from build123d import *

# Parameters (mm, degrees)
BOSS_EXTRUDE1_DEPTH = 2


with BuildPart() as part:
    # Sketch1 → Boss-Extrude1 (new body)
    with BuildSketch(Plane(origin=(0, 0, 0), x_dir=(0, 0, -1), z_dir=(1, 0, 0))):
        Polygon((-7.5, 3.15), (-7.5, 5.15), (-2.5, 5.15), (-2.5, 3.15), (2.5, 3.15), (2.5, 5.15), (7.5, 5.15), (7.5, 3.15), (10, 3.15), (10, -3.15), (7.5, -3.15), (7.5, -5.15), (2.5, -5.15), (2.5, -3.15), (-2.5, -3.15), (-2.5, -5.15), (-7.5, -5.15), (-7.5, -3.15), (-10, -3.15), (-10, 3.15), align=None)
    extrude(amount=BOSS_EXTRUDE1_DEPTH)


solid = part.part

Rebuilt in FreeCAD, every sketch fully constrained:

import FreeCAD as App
import Part
import Sketcher

doc = App.newDocument("Part")
body = doc.addObject("PartDesign::Body", "Body")

# Sketch on YZ plane
sketch1 = body.newObject("Sketcher::SketchObject", "Sketch")
sketch1.AttachmentSupport = (doc.getObject("YZ_Plane"), [""])
sketch1.MapMode = "FlatFace"
sketch1.addGeometry([
    Part.LineSegment(App.Vector(5.15, 7.5, 0), App.Vector(3.15, 7.5, 0)),  # 0
    Part.LineSegment(App.Vector(3.15, 7.5, 0), App.Vector(3.15, 10, 0)),  # 1
    Part.LineSegment(App.Vector(3.15, 10, 0), App.Vector(-3.15, 10, 0)),  # 2
    Part.LineSegment(App.Vector(-3.15, 10, 0), App.Vector(-3.15, 7.5, 0)),  # 3
    Part.LineSegment(App.Vector(-3.15, 7.5, 0), App.Vector(-5.15, 7.5, 0)),  # 4
    Part.LineSegment(App.Vector(-5.15, 7.5, 0), App.Vector(-5.15, 2.5, 0)),  # 5
    Part.LineSegment(App.Vector(-5.15, 2.5, 0), App.Vector(-3.15, 2.5, 0)),  # 6
    Part.LineSegment(App.Vector(-3.15, 2.5, 0), App.Vector(-3.15, -2.5, 0)),  # 7
    Part.LineSegment(App.Vector(-3.15, -2.5, 0), App.Vector(-5.15, -2.5, 0)),  # 8
    Part.LineSegment(App.Vector(-5.15, -2.5, 0), App.Vector(-5.15, -7.5, 0)),  # 9
    Part.LineSegment(App.Vector(-5.15, -7.5, 0), App.Vector(-3.15, -7.5, 0)),  # 10
    Part.LineSegment(App.Vector(-3.15, -7.5, 0), App.Vector(-3.15, -10, 0)),  # 11
    Part.LineSegment(App.Vector(-3.15, -10, 0), App.Vector(3.15, -10, 0)),  # 12
    Part.LineSegment(App.Vector(3.15, -10, 0), App.Vector(3.15, -7.5, 0)),  # 13
    Part.LineSegment(App.Vector(3.15, -7.5, 0), App.Vector(5.15, -7.5, 0)),  # 14
    Part.LineSegment(App.Vector(5.15, -7.5, 0), App.Vector(5.15, -2.5, 0)),  # 15
    Part.LineSegment(App.Vector(5.15, -2.5, 0), App.Vector(3.15, -2.5, 0)),  # 16
    Part.LineSegment(App.Vector(3.15, -2.5, 0), App.Vector(3.15, 2.5, 0)),  # 17
    Part.LineSegment(App.Vector(3.15, 2.5, 0), App.Vector(5.15, 2.5, 0)),  # 18
    Part.LineSegment(App.Vector(5.15, 2.5, 0), App.Vector(5.15, 7.5, 0)),  # 19
], False)
sketch1.addConstraint([
    Sketcher.Constraint("Coincident", 0, 2, 1, 1),
    Sketcher.Constraint("Coincident", 1, 2, 2, 1),
    Sketcher.Constraint("Coincident", 2, 2, 3, 1),
    Sketcher.Constraint("Coincident", 3, 2, 4, 1),
    Sketcher.Constraint("Coincident", 4, 2, 5, 1),
    Sketcher.Constraint("Coincident", 5, 2, 6, 1),
    Sketcher.Constraint("Coincident", 6, 2, 7, 1),
    Sketcher.Constraint("Coincident", 7, 2, 8, 1),
    Sketcher.Constraint("Coincident", 8, 2, 9, 1),
    Sketcher.Constraint("Coincident", 9, 2, 10, 1),
    Sketcher.Constraint("Coincident", 10, 2, 11, 1),
    Sketcher.Constraint("Coincident", 11, 2, 12, 1),
    Sketcher.Constraint("Coincident", 12, 2, 13, 1),
    Sketcher.Constraint("Coincident", 13, 2, 14, 1),
    Sketcher.Constraint("Coincident", 14, 2, 15, 1),
    Sketcher.Constraint("Coincident", 15, 2, 16, 1),
    Sketcher.Constraint("Coincident", 16, 2, 17, 1),
    Sketcher.Constraint("Coincident", 17, 2, 18, 1),
    Sketcher.Constraint("Coincident", 18, 2, 19, 1),
    Sketcher.Constraint("Coincident", 19, 2, 0, 1),
    Sketcher.Constraint("Horizontal", 0),
    Sketcher.Constraint("Vertical", 1),
    Sketcher.Constraint("Horizontal", 2),
    Sketcher.Constraint("Vertical", 3),
    Sketcher.Constraint("Horizontal", 4),
    Sketcher.Constraint("Vertical", 5),
    Sketcher.Constraint("Horizontal", 6),
    Sketcher.Constraint("Vertical", 7),
    Sketcher.Constraint("Horizontal", 8),
    Sketcher.Constraint("Vertical", 9),
    Sketcher.Constraint("Horizontal", 10),
    Sketcher.Constraint("Vertical", 11),
    Sketcher.Constraint("Horizontal", 12),
    Sketcher.Constraint("Vertical", 13),
    Sketcher.Constraint("Horizontal", 14),
    Sketcher.Constraint("Vertical", 15),
    Sketcher.Constraint("Horizontal", 16),
    Sketcher.Constraint("Vertical", 17),
    Sketcher.Constraint("Horizontal", 18),
    Sketcher.Constraint("Vertical", 19),
    Sketcher.Constraint("Symmetric", 0, 2, 10, 2, -1, 1),
    Sketcher.Constraint("Symmetric", 2, 2, 12, 2, -1, 1),
    Sketcher.Constraint("Symmetric", 4, 2, 14, 2, -1, 1),
    Sketcher.Constraint("Symmetric", 6, 2, 16, 2, -1, 1),
    Sketcher.Constraint("Symmetric", 8, 2, 18, 2, -1, 1),
    Sketcher.Constraint("Symmetric", 0, 2, 3, 2, -2),
    Sketcher.Constraint("Symmetric", 8, 2, 15, 2, -2),
    Sketcher.Constraint("Vertical", 3, 2, 6, 2),
    Sketcher.Constraint("Equal", 5, 7),
    Sketcher.Constraint("DistanceX", 0, 2, 0, 1, 2.0),
    Sketcher.Constraint("DistanceY", 5, 2, 5, 1, 5.0),
    Sketcher.Constraint("DistanceX", 2, 2, 2, 1, 6.3),
    Sketcher.Constraint("DistanceY", 1, 1, 1, 2, 2.5),
])
pad1 = body.newObject("PartDesign::Pad", "Pad")
pad1.Profile = sketch1
pad1.Length = 2

doc.recompute()
